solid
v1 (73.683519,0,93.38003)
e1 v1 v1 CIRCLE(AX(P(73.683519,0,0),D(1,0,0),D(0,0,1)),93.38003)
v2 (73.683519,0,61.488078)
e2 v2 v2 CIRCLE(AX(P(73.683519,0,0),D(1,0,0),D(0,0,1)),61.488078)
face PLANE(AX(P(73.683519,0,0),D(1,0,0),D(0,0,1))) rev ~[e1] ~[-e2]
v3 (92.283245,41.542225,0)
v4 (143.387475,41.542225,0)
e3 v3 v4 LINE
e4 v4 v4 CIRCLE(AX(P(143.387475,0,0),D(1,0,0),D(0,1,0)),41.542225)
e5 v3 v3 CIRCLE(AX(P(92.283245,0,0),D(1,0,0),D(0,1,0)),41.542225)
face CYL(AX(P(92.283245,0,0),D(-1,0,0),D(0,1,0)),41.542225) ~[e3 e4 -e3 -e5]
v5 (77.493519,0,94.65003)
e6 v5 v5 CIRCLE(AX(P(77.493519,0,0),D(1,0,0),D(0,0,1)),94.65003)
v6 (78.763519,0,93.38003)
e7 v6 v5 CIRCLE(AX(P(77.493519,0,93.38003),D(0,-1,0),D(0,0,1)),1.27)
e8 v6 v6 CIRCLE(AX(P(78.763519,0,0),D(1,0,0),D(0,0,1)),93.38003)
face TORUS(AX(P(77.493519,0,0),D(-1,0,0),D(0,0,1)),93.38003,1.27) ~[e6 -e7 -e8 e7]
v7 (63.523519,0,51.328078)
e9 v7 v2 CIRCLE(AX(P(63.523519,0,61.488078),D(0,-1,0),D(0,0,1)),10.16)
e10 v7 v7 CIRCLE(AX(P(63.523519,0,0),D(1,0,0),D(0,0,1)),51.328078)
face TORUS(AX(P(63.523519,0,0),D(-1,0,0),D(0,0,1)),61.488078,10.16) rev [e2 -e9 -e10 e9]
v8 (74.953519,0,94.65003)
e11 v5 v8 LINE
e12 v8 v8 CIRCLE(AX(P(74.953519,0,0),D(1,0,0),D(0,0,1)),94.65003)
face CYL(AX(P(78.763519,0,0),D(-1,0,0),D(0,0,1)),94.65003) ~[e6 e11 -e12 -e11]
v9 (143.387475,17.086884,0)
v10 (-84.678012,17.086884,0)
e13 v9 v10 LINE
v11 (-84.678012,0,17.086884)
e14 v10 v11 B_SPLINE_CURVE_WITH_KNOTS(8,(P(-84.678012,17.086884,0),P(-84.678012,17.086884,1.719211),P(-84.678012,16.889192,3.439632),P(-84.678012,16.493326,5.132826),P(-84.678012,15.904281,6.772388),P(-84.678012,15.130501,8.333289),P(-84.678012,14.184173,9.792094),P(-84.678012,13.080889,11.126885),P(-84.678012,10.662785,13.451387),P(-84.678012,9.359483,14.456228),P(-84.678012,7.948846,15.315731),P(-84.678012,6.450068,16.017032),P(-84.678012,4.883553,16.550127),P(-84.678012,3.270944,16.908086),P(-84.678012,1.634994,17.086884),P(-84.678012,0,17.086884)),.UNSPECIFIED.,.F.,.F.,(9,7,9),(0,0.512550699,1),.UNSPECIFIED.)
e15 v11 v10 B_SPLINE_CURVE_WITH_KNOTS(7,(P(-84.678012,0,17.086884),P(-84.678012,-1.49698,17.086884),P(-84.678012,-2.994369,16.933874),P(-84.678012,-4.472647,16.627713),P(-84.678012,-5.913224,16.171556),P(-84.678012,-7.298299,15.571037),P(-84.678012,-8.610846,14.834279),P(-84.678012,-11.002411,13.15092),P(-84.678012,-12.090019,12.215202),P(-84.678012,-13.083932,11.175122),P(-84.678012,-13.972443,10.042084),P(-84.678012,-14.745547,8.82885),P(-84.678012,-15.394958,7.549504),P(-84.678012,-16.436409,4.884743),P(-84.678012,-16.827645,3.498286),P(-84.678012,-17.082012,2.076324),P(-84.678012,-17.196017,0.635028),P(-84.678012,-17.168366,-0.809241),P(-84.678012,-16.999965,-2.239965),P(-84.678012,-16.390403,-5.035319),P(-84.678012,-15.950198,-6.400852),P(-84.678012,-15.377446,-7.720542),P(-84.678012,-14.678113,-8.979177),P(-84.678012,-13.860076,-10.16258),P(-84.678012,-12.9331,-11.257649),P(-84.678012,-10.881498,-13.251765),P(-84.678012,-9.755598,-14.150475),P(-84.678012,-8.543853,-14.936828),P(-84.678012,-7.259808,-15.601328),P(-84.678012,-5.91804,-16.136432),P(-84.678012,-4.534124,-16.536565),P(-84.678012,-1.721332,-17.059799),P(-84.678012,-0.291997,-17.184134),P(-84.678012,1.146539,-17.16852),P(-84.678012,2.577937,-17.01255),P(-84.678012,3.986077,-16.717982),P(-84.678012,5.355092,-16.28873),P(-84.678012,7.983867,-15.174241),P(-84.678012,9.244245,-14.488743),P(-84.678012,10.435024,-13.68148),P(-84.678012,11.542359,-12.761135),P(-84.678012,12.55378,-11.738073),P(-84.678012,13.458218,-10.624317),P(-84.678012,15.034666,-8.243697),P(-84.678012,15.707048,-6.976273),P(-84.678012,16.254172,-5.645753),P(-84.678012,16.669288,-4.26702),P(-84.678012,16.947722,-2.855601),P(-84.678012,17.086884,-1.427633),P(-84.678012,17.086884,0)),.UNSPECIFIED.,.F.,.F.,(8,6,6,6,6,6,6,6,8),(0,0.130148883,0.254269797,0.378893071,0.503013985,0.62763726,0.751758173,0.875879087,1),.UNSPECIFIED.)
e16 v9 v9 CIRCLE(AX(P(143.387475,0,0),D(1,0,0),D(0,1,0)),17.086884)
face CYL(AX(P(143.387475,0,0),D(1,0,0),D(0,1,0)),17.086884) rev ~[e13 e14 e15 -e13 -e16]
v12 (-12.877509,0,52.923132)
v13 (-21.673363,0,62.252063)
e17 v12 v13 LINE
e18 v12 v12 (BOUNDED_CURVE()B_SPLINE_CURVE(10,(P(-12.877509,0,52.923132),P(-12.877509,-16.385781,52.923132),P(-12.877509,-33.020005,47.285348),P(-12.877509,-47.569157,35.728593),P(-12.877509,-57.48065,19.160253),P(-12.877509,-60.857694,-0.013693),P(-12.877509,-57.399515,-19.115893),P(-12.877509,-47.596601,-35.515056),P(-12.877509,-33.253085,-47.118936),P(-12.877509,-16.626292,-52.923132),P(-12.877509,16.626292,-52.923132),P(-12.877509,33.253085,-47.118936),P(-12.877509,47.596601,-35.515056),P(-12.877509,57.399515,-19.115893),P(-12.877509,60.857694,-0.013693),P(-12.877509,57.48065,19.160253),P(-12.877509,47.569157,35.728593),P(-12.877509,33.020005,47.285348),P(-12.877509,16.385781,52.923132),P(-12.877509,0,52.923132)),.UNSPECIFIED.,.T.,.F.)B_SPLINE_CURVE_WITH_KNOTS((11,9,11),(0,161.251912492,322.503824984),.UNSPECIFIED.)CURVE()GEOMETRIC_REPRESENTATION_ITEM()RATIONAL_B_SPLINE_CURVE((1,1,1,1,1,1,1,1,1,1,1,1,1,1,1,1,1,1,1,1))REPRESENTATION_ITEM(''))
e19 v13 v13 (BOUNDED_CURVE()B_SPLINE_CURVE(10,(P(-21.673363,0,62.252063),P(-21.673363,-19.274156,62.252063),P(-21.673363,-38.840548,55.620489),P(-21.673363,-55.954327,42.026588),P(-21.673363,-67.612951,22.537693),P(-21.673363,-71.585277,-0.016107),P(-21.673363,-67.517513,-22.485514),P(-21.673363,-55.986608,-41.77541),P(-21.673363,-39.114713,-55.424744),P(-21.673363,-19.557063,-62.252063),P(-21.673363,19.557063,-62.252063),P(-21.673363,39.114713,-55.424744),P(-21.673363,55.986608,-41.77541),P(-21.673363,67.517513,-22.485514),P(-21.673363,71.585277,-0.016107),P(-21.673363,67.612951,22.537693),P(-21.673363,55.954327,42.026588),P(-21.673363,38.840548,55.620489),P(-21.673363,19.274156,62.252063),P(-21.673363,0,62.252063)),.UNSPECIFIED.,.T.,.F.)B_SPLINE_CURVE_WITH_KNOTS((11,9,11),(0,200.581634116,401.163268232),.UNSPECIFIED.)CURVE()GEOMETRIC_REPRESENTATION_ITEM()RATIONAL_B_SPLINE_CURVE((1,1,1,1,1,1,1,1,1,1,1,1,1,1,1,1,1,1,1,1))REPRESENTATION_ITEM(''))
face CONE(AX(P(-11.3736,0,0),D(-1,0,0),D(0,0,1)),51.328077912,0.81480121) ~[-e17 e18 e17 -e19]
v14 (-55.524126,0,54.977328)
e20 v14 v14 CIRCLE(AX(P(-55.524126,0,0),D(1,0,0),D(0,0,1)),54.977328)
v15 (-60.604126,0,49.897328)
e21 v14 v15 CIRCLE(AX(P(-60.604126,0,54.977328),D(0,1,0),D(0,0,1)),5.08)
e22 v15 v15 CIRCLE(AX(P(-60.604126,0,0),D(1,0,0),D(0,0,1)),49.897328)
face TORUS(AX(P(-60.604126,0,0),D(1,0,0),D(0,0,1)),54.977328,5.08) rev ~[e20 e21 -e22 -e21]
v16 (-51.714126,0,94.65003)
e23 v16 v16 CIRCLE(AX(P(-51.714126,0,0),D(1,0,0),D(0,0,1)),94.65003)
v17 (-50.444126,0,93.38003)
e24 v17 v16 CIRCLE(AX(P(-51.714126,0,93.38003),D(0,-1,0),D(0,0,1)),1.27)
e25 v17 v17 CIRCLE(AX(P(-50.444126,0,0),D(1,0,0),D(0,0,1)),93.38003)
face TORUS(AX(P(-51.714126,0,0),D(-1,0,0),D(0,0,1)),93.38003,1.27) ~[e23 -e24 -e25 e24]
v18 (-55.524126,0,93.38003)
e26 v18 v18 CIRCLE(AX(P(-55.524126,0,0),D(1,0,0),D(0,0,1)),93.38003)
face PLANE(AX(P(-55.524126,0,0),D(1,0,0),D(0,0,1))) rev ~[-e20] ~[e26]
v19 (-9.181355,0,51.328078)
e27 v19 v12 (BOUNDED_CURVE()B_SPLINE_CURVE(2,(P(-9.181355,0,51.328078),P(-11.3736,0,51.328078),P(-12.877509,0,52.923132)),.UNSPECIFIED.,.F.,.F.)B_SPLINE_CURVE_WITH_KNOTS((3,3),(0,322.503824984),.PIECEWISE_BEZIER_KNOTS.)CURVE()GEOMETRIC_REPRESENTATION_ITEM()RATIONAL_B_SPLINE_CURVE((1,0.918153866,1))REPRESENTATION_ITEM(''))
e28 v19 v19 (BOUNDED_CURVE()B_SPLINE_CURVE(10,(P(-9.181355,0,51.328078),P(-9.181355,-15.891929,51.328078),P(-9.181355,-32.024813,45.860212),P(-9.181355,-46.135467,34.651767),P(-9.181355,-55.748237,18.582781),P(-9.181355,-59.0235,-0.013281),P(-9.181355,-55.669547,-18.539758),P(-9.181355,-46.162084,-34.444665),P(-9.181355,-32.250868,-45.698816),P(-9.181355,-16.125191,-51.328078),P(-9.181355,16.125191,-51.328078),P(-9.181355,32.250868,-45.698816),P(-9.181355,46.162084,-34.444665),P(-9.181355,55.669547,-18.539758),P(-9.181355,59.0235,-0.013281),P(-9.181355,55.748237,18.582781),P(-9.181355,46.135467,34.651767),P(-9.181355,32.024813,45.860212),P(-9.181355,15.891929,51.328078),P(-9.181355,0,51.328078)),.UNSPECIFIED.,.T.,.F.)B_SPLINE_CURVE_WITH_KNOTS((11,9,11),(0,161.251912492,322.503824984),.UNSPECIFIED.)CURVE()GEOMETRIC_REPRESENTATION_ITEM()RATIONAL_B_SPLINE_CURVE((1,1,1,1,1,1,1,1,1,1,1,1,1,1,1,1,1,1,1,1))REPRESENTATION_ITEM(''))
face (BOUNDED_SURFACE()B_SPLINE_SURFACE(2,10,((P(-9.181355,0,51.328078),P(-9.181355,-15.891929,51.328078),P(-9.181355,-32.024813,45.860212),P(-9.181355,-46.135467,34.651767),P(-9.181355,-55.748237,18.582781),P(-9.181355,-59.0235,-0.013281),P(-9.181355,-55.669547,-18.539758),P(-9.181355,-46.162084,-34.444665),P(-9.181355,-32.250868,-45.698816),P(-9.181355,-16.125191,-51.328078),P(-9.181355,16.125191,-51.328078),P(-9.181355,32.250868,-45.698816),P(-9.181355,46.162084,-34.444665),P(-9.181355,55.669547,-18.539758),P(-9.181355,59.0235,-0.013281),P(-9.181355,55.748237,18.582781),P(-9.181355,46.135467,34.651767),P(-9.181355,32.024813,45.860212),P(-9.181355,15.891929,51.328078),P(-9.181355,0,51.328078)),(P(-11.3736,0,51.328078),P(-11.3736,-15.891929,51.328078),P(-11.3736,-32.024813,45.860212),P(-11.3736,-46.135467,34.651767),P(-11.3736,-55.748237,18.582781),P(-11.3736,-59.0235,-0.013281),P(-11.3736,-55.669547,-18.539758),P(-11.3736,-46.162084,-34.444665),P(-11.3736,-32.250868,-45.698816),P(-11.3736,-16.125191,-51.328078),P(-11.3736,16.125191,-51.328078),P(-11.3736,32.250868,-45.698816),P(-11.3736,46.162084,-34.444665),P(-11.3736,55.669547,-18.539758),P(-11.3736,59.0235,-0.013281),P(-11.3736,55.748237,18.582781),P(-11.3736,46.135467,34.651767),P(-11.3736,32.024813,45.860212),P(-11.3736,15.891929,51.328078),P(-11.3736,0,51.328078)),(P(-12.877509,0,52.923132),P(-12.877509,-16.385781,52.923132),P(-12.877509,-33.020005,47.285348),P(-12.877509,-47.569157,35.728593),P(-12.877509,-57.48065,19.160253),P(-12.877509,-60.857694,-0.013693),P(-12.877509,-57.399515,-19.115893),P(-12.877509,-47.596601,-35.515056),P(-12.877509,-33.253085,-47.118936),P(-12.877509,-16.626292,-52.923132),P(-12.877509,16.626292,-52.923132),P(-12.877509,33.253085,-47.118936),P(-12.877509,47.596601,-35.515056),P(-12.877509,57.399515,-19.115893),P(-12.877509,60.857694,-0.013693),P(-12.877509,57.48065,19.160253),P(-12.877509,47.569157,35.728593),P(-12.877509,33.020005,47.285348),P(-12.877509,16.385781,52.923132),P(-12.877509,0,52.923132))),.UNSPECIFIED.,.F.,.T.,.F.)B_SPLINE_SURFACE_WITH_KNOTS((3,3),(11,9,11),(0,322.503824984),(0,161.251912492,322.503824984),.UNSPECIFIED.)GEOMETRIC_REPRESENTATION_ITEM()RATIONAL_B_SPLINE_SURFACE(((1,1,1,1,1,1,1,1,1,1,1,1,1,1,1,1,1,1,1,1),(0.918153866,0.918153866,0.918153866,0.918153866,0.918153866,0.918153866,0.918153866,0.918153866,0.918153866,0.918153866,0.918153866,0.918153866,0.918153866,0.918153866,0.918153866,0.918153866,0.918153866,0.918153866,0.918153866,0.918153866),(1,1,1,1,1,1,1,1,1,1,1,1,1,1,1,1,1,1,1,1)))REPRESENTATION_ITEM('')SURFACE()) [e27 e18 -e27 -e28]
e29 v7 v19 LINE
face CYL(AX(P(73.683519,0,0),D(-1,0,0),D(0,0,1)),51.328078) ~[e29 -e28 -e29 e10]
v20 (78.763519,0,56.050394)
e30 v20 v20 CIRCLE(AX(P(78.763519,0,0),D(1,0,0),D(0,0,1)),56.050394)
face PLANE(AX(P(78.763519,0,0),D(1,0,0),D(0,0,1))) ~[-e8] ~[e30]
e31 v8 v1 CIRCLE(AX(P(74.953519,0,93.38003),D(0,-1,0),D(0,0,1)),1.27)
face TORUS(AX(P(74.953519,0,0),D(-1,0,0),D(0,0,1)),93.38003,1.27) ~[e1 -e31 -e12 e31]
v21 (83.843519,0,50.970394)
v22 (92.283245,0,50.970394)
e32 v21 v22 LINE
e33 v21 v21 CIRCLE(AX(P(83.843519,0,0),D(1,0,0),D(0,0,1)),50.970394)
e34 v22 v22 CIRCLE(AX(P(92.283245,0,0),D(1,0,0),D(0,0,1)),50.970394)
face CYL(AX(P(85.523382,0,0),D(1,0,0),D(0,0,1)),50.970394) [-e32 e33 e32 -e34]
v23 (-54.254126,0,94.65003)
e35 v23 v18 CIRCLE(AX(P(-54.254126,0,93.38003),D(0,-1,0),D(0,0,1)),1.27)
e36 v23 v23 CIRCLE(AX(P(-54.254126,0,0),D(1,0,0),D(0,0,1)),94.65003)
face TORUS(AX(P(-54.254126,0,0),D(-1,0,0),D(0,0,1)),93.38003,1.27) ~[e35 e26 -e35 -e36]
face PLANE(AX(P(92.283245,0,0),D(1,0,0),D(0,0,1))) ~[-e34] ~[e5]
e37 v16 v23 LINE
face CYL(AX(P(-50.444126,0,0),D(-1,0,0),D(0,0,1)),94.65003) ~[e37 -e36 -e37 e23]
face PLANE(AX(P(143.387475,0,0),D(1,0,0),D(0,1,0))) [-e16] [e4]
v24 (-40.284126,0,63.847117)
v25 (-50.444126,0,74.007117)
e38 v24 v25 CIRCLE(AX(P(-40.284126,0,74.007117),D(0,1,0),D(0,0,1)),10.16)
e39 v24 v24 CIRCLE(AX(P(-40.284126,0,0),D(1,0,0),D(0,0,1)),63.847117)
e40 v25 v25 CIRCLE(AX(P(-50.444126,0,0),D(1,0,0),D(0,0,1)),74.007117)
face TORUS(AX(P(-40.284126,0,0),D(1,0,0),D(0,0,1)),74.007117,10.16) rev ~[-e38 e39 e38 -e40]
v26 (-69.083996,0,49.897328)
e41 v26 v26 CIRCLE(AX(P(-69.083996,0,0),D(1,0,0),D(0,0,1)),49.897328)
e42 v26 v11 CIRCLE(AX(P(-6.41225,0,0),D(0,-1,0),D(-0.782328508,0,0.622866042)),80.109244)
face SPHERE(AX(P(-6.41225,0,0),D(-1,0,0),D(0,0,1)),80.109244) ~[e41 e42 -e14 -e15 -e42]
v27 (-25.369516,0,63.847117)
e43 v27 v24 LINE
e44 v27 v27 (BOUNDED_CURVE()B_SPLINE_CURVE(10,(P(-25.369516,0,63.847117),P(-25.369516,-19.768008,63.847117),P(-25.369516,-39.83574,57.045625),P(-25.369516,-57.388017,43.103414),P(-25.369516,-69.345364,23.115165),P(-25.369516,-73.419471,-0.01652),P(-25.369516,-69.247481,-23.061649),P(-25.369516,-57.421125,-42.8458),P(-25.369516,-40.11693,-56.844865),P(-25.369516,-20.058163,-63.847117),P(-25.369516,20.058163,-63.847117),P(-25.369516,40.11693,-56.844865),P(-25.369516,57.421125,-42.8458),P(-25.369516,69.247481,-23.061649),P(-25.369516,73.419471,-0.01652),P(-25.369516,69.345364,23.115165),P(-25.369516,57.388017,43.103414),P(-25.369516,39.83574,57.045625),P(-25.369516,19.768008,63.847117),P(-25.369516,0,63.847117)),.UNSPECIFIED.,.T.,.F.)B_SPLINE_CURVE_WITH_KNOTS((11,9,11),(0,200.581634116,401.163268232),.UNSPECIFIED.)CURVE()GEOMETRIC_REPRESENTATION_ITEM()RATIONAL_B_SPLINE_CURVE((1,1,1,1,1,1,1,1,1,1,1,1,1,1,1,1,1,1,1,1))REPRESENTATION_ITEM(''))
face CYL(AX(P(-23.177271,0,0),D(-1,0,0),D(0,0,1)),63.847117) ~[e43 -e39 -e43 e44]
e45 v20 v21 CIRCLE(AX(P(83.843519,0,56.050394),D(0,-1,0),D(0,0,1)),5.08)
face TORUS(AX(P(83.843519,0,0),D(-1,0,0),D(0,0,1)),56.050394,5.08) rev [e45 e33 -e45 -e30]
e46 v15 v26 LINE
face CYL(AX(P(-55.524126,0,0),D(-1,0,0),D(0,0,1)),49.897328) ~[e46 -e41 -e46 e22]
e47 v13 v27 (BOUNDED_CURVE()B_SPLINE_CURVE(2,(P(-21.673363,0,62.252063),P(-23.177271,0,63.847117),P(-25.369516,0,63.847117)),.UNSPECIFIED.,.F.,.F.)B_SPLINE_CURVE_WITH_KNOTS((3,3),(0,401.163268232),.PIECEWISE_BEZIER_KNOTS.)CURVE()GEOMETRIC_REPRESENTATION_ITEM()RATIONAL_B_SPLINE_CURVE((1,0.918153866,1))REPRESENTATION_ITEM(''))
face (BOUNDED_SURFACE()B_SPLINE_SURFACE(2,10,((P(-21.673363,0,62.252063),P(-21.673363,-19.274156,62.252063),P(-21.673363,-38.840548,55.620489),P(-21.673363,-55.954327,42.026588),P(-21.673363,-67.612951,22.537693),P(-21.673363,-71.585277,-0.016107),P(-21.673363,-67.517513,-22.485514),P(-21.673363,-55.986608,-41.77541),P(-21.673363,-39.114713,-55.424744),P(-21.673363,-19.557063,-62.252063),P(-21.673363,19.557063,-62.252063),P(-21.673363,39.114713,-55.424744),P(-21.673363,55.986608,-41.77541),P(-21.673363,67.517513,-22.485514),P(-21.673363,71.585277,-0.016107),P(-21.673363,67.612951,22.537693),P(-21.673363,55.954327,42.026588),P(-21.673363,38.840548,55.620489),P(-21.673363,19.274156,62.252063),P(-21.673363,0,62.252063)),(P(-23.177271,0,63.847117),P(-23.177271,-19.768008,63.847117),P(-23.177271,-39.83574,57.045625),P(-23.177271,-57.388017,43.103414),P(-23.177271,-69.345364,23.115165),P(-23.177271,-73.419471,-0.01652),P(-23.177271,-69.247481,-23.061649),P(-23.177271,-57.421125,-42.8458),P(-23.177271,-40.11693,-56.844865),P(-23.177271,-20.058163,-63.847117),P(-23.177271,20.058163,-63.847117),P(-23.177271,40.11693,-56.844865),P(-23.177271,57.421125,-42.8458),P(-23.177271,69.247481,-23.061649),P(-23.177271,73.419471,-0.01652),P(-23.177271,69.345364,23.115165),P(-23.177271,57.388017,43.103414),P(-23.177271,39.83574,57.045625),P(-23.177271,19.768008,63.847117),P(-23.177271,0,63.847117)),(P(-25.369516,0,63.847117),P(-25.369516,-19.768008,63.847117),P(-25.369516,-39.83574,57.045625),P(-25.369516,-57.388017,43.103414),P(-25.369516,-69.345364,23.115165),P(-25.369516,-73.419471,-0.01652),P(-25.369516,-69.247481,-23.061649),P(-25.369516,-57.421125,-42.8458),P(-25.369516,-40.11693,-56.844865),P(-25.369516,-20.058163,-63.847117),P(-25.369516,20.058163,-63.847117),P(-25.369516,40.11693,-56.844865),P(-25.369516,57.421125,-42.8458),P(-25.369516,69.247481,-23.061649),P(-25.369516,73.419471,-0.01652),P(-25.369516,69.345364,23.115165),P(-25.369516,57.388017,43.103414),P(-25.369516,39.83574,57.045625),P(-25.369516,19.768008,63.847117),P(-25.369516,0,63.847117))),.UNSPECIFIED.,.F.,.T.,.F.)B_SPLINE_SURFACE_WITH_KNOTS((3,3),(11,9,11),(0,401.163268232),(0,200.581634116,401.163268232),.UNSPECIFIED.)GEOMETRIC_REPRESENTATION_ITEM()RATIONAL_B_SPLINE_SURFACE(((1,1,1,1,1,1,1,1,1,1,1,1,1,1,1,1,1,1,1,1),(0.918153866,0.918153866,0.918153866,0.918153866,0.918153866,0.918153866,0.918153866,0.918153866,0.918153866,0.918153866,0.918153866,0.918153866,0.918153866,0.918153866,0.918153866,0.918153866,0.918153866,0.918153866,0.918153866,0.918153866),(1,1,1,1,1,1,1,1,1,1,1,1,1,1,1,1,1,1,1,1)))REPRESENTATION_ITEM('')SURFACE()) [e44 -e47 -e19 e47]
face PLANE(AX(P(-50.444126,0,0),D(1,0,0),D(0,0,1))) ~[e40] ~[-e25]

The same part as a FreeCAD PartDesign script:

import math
import FreeCAD as App
import Part
import Sketcher
Q = App.Units.Quantity


def edges_at(feature, points):
    """Names of the edges that pass closest to the given points."""
    edges = feature.Shape.Edges
    near = lambda p: min(range(len(edges)), key=lambda i: edges[i].distToShape(Part.Vertex(*p))[0])
    return sorted({f"Edge{near(p) + 1}" for p in points})

doc = App.newDocument("Part")
body = doc.addObject("PartDesign::Body", "Body")

sketch1 = doc.addObject("Sketcher::SketchObject", "Sketch")
body.addObject(sketch1)
sketch1.AttachmentSupport = (doc.XZ_Plane, [""])
sketch1.MapMode = "FlatFace"
sketch1.addGeometry([
    Part.LineSegment(App.Vector(-56, 50, 0), App.Vector(-69, 50, 0)),
    Part.ArcOfCircle(Part.Circle(App.Vector(-6, 0, 0), App.Vector(0, 0, 1), 80), math.radians(141), math.radians(180)),
    Part.LineSegment(App.Vector(-87, 0, 0), App.Vector(92, 0, 0)),
    Part.LineSegment(App.Vector(92, 0, 0), App.Vector(92, 51, 0)),
    Part.LineSegment(App.Vector(92, 51, 0), App.Vector(79, 51, 0)),
    Part.LineSegment(App.Vector(79, 51, 0), App.Vector(79, 95, 0)),
    Part.LineSegment(App.Vector(79, 95, 0), App.Vector(74, 95, 0)),
    Part.LineSegment(App.Vector(74, 95, 0), App.Vector(74, 51, 0)),
    Part.LineSegment(App.Vector(74, 51, 0), App.Vector(-11, 51, 0)),
    Part.LineSegment(App.Vector(-11, 51, 0), App.Vector(-23, 64, 0)),
    Part.LineSegment(App.Vector(-23, 64, 0), App.Vector(-50, 64, 0)),
    Part.LineSegment(App.Vector(-50, 64, 0), App.Vector(-50, 95, 0)),
    Part.LineSegment(App.Vector(-50, 95, 0), App.Vector(-56, 95, 0)),
    Part.LineSegment(App.Vector(-56, 95, 0), App.Vector(-56, 50, 0)),
], False)
sketch1.addConstraint([
    Sketcher.Constraint("Coincident", 0, 2, 1, 1),
    Sketcher.Constraint("Coincident", 1, 2, 2, 1),
    Sketcher.Constraint("Coincident", 2, 2, 3, 1),
    Sketcher.Constraint("Coincident", 3, 2, 4, 1),
    Sketcher.Constraint("Coincident", 4, 2, 5, 1),
    Sketcher.Constraint("Coincident", 5, 2, 6, 1),
    Sketcher.Constraint("Coincident", 6, 2, 7, 1),
    Sketcher.Constraint("Coincident", 7, 2, 8, 1),
    Sketcher.Constraint("Coincident", 8, 2, 9, 1),
    Sketcher.Constraint("Coincident", 9, 2, 10, 1),
    Sketcher.Constraint("Coincident", 10, 2, 11, 1),
    Sketcher.Constraint("Coincident", 11, 2, 12, 1),
    Sketcher.Constraint("Coincident", 12, 2, 13, 1),
    Sketcher.Constraint("Coincident", 13, 2, 0, 1),
    Sketcher.Constraint("Horizontal", 0),
    Sketcher.Constraint("Horizontal", 2),
    Sketcher.Constraint("Vertical", 3),
    Sketcher.Constraint("Horizontal", 4),
    Sketcher.Constraint("Vertical", 5),
    Sketcher.Constraint("Horizontal", 6),
    Sketcher.Constraint("Vertical", 7),
    Sketcher.Constraint("Horizontal", 8),
    Sketcher.Constraint("Horizontal", 10),
    Sketcher.Constraint("Vertical", 11),
    Sketcher.Constraint("Horizontal", 12),
    Sketcher.Constraint("Vertical", 13),
    Sketcher.Constraint("PointOnObject", 1, 3, -1),
    Sketcher.Constraint("PointOnObject", 1, 2, -1),
    Sketcher.Constraint("Horizontal", 6, 2, 11, 2),
    Sketcher.Constraint("Equal", 6, 12),
    Sketcher.Constraint("DistanceX", 6, 2, 6, 1, Q("0.2 in")),
    Sketcher.Constraint("Radius", 1, 80.109244),
    Sketcher.Constraint("DistanceX", 0, 2, 0, 1, 13.55987),
    Sketcher.Constraint("DistanceX", 2, 1, 2, 2, 178.80474),
    Sketcher.Constraint("DistanceX", 8, 2, 8, 1, 85.057119),
    Sketcher.Constraint("DistanceX", 8, 2, -1, 1, 11.3736),
    Sketcher.Constraint("DistanceX", 1, 2, 0, 2, 17.437499),
    Sketcher.Constraint("Distance", 9, 17.206191),
    Sketcher.Constraint("DistanceX", 4, 2, 4, 1, 13.519726),
    Sketcher.Constraint("DistanceX", 10, 2, 10, 1, 27.266854),
    Sketcher.Constraint("DistanceY", 3, 1, 3, 2, 50.970394),
    Sketcher.Constraint("DistanceY", 5, 1, 5, 2, 43.679636),
    Sketcher.Constraint("DistanceY", 7, 2, 7, 1, 43.321952),
])
revolution = doc.addObject("PartDesign::Revolution", "Revolution")
body.addObject(revolution)
revolution.Profile = sketch1
revolution.ReferenceAxis = (sketch1, ["H_Axis"])
revolution.Angle = 360
doc.recompute()

fillet = doc.addObject("PartDesign::Fillet", "Fillet")
body.addObject(fillet)
fillet.Base = (revolution, edges_at(revolution, [(-11.374, 0, -51.328), (-23.177, 0, -63.847)]))
fillet.Radius = Q("0.2 in")
doc.recompute()

fillet2 = doc.addObject("PartDesign::Fillet", "Fillet001")
body.addObject(fillet2)
fillet2.Base = (fillet, edges_at(fillet, [(-50.444, 0, -63.847), (73.684, 0, -51.328)]))
fillet2.Radius = Q("0.4 in")
doc.recompute()

fillet3 = doc.addObject("PartDesign::Fillet", "Fillet002")
body.addObject(fillet3)
fillet3.Base = (fillet2, edges_at(fillet2, [(-55.524, 0, -49.897), (78.764, 0, -50.97)]))
fillet3.Radius = Q("0.2 in")
doc.recompute()

fillet4 = doc.addObject("PartDesign::Fillet", "Fillet003")
body.addObject(fillet4)
fillet4.Base = (fillet3, edges_at(fillet3, [
    (-50.444, 0, -94.65),
    (-55.524, 0, -94.65),
    (78.764, 0, -94.65),
    (73.684, 0, -94.65),
]))
fillet4.Radius = Q("0.05 in")

sketch2 = doc.addObject("Sketcher::SketchObject", "Sketch001")
body.addObject(sketch2)
sketch2.AttachmentSupport = (doc.YZ_Plane, [""])
sketch2.MapMode = "FlatFace"
sketch2.AttachmentOffset = App.Placement(App.Vector(0, 0, 92.283245), App.Rotation())
sketch2.addGeometry(Part.Circle(App.Vector(0, 0, 0), App.Vector(0, 0, 1), 42), False)
sketch2.addConstraint([
    Sketcher.Constraint("Coincident", 0, 3, -1, 1),
    Sketcher.Constraint("Diameter", 0, 83.084449),
])
pad1 = doc.addObject("PartDesign::Pad", "Pad")
body.addObject(pad1)
pad1.Profile = sketch2
pad1.Length = 51.10423

sketch3 = doc.addObject("Sketcher::SketchObject", "Sketch002")
body.addObject(sketch3)
sketch3.AttachmentSupport = (doc.YZ_Plane, [""])
sketch3.MapMode = "FlatFace"
sketch3.AttachmentOffset = App.Placement(App.Vector(0, 0, 143.387475), App.Rotation())
sketch3.addGeometry(Part.Circle(App.Vector(0, 0, 0), App.Vector(0, 0, 1), 17), False)
sketch3.addConstraint([
    Sketcher.Constraint("Coincident", 0, 3, -1, 1),
    Sketcher.Constraint("Diameter", 0, 34.173768),
])
pocket1 = doc.addObject("PartDesign::Pocket", "Pocket")
body.addObject(pocket1)
pocket1.Profile = sketch3
pocket1.Type = "ThroughAll"

doc.recompute()
